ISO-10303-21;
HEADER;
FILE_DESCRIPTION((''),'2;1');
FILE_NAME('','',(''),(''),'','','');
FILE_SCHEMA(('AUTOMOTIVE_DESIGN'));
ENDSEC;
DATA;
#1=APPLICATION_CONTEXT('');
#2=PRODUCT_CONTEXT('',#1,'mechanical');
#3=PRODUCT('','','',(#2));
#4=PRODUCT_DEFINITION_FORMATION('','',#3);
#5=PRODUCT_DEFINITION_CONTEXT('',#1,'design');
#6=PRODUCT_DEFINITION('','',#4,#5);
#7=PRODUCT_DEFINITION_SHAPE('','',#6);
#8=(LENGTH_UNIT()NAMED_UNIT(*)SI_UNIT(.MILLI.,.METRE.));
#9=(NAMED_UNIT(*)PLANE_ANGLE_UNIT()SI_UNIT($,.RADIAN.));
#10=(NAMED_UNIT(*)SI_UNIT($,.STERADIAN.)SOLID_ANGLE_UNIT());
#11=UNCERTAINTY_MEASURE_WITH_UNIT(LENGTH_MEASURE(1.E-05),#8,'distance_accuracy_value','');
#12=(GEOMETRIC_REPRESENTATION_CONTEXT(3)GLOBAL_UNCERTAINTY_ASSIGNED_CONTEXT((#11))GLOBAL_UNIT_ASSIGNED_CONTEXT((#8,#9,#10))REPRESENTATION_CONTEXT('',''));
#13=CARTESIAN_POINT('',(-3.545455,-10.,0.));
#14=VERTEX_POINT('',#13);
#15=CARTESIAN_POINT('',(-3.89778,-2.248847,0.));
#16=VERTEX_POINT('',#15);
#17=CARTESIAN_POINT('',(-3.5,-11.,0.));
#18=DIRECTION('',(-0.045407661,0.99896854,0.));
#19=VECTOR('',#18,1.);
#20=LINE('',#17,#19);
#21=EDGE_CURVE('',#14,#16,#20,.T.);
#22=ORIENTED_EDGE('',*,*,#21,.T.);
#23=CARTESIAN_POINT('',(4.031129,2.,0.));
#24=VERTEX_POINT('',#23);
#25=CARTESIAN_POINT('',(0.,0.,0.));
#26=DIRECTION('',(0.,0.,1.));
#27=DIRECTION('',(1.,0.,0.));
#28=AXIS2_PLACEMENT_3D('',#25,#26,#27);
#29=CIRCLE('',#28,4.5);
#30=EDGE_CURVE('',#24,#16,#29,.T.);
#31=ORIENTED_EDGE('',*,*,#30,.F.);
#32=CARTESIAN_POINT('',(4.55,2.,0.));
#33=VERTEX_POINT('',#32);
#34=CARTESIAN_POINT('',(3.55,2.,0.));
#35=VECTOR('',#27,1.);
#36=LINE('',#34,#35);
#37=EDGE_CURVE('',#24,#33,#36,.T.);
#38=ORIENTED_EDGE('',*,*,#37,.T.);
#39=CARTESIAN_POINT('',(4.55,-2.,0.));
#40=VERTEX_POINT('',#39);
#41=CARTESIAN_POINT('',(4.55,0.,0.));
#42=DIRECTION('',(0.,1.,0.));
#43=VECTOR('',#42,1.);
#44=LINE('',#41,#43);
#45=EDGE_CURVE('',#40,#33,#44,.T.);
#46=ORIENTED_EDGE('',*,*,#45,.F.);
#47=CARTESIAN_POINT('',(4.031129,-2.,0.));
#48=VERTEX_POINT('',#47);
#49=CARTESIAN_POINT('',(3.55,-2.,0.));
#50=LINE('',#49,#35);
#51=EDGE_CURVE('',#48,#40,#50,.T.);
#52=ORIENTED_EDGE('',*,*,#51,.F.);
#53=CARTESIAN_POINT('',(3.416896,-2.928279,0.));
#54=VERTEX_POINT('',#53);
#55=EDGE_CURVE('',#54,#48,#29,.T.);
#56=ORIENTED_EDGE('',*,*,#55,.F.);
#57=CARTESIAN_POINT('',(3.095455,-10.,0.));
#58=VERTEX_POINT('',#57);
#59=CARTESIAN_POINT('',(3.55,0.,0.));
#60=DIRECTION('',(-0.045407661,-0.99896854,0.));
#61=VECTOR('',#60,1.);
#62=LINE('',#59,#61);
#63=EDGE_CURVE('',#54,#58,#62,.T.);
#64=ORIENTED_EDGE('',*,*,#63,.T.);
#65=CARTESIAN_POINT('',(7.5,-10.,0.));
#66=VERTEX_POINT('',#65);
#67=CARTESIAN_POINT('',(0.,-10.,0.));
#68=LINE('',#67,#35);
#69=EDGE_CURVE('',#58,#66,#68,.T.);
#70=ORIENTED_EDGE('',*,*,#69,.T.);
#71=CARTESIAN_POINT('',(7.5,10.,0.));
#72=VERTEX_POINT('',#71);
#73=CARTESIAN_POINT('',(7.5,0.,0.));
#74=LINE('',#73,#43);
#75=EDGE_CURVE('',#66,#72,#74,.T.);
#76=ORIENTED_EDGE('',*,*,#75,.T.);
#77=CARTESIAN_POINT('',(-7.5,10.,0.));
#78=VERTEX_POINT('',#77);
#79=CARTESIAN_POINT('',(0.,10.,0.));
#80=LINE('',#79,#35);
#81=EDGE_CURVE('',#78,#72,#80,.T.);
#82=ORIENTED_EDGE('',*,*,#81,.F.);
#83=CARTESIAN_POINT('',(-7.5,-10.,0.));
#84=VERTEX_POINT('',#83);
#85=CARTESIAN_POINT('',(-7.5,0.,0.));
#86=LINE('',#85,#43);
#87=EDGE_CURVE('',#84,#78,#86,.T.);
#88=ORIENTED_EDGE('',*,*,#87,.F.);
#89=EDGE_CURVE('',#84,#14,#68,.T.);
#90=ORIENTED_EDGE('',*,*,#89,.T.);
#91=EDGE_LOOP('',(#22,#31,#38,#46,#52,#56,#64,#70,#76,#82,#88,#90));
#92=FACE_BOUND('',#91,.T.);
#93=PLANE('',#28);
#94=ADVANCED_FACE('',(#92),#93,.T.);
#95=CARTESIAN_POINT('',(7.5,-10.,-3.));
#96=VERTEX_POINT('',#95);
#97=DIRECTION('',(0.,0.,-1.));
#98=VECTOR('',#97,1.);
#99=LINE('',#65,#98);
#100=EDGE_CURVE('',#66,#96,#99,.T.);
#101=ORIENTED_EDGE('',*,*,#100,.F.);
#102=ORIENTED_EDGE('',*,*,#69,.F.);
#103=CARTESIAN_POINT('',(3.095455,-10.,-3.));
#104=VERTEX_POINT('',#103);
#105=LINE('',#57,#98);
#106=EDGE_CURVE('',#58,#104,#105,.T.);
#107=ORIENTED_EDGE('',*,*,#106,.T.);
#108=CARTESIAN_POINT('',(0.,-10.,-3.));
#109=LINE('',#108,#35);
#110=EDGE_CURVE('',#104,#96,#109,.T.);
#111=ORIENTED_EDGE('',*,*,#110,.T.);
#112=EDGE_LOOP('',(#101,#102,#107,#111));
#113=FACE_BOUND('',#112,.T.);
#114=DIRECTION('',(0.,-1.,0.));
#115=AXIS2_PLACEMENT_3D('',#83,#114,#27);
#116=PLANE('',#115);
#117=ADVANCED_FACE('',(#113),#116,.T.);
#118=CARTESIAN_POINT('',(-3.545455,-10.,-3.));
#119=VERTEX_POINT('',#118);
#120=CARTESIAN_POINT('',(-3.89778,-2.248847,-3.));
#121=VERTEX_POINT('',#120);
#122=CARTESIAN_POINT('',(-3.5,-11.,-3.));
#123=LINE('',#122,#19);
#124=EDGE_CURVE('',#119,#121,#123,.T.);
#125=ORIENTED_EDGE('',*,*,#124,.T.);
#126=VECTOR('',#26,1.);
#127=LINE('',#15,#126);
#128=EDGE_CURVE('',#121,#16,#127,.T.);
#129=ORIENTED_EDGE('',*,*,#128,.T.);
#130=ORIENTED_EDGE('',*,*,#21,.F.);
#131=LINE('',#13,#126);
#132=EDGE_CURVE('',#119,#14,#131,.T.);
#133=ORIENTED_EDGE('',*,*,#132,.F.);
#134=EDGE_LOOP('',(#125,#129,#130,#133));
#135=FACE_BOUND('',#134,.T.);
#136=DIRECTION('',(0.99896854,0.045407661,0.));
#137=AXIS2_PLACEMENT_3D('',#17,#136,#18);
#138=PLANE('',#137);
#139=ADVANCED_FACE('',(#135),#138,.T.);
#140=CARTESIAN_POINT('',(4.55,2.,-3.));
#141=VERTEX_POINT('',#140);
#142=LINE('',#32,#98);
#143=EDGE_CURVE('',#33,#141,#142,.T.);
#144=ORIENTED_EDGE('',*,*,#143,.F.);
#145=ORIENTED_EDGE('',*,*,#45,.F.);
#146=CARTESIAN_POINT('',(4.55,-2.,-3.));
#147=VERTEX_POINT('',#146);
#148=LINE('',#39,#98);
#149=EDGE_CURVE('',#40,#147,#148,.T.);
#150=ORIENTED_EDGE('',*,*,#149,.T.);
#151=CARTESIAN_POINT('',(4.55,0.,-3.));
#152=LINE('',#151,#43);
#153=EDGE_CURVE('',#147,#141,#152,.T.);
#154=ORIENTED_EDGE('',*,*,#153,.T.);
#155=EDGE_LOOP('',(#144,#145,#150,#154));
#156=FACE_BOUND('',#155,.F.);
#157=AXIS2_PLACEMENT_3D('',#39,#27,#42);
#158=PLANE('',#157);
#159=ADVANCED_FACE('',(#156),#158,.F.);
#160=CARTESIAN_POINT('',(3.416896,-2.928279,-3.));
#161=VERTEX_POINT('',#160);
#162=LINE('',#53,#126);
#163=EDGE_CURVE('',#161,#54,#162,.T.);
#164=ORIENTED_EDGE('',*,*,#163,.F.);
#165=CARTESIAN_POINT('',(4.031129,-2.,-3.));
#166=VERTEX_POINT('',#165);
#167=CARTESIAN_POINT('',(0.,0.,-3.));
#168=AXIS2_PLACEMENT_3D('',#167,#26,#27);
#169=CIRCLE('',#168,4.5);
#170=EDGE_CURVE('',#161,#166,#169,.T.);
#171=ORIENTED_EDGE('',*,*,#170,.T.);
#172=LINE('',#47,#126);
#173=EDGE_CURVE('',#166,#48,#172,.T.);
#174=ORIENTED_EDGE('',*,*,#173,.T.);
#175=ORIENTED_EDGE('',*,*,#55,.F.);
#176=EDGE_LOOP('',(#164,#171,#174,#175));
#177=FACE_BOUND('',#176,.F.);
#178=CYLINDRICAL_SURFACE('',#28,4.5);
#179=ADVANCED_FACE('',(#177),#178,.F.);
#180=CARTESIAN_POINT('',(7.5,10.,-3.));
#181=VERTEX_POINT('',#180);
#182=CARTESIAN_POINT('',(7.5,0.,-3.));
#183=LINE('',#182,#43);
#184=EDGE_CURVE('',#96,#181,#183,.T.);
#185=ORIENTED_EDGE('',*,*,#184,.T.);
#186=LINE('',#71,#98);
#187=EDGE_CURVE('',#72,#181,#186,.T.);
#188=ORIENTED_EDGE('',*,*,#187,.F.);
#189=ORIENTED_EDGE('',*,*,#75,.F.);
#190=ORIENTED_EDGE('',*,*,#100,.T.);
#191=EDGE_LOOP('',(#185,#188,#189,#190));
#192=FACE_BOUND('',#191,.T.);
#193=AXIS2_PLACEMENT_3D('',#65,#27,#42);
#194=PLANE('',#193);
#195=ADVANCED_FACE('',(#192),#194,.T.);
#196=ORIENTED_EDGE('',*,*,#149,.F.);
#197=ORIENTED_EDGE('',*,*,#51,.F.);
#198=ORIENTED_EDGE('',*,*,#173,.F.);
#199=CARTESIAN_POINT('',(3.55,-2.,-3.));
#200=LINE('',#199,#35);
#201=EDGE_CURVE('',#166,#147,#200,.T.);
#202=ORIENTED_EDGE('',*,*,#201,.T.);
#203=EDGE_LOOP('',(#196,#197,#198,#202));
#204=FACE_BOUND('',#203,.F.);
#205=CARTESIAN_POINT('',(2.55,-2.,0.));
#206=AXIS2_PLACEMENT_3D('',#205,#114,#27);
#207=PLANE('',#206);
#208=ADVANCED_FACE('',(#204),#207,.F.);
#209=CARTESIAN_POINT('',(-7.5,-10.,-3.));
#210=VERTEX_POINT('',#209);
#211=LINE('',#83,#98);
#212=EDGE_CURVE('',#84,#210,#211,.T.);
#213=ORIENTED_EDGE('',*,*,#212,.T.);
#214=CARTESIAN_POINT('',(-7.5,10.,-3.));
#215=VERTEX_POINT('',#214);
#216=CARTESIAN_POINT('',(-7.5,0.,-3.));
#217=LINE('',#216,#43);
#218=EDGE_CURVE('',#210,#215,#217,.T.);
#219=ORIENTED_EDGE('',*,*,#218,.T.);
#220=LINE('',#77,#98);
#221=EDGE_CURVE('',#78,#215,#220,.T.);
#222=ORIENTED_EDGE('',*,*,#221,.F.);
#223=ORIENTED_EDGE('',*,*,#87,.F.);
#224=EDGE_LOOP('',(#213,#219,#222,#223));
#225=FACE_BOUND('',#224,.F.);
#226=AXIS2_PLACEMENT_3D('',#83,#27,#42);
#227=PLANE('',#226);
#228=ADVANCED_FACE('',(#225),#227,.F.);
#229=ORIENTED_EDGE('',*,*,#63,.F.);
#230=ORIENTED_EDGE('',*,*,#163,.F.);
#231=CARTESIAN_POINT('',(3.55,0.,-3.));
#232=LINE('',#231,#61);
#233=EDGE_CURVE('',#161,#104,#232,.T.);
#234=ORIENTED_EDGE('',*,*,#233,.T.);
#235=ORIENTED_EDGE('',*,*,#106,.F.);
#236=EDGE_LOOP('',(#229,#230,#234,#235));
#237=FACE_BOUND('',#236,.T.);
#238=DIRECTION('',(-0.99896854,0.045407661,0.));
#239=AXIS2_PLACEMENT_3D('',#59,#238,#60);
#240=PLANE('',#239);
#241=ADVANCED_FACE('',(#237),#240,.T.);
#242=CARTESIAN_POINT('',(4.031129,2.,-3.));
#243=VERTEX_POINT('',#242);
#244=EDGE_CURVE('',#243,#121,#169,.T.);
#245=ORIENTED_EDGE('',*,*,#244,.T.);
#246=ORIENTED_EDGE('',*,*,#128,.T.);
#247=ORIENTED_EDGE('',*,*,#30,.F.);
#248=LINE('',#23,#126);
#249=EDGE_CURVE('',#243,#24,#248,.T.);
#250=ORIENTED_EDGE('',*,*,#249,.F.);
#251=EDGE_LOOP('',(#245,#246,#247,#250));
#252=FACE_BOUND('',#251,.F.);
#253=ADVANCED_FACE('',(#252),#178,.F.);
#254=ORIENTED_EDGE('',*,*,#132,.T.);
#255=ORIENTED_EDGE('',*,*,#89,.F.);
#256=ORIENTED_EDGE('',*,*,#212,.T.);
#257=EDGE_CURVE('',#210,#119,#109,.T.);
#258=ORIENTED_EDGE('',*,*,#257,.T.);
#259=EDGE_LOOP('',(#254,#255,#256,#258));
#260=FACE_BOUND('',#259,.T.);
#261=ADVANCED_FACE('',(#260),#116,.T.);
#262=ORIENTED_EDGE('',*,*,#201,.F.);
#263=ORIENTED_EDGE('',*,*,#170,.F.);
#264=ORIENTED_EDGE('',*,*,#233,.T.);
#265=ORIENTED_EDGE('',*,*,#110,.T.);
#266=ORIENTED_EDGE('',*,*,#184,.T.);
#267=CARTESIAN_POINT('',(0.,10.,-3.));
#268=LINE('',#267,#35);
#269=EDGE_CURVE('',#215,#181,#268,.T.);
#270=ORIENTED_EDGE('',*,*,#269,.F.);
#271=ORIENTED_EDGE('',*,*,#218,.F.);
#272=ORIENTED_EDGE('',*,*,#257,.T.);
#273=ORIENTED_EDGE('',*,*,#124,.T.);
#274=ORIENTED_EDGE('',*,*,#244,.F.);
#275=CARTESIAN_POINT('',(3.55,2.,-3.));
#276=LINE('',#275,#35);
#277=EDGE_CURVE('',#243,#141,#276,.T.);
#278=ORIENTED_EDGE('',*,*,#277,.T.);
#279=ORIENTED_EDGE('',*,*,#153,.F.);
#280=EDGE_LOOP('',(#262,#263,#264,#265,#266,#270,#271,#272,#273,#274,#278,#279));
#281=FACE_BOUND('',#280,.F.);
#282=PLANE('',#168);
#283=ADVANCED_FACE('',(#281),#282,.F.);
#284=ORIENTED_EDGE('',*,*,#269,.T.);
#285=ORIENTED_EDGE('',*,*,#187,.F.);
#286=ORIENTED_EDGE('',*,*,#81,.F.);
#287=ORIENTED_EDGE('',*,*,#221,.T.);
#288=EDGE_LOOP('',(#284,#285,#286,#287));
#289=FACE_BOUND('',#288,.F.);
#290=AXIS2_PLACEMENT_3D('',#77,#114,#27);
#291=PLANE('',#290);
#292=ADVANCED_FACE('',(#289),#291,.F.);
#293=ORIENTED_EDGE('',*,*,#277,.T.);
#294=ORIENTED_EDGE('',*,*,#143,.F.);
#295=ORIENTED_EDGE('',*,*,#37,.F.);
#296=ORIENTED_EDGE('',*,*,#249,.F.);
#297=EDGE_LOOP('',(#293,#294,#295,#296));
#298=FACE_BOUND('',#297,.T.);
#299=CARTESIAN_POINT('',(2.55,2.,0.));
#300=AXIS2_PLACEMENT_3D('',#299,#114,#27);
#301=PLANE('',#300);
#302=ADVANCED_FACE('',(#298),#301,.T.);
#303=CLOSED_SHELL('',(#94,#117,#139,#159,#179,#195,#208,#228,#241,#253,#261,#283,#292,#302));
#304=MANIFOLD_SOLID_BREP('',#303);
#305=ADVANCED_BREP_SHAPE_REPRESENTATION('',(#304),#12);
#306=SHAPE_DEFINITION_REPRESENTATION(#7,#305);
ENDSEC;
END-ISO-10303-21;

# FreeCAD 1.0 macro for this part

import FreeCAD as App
import Part
import Sketcher

V = App.Vector

doc = App.newDocument("Part")
body = doc.addObject("PartDesign::Body", "Body")

sketch1 = doc.addObject("Sketcher::SketchObject", "Sketch")
body.addObject(sketch1)
sketch1.AttachmentSupport = (doc.XY_Plane, [""])
sketch1.MapMode = "FlatFace"
sketch1.addGeometry([
    Part.LineSegment(V(-8, 10, 0), V(-8, -10, 0)),
    Part.LineSegment(V(-8, -10, 0), V(8, -10, 0)),
    Part.LineSegment(V(8, -10, 0), V(8, 10, 0)),
    Part.LineSegment(V(8, 10, 0), V(-8, 10, 0)),
], False)
sketch1.addConstraint([
    Sketcher.Constraint("Coincident", 0, 2, 1, 1),
    Sketcher.Constraint("Coincident", 1, 2, 2, 1),
    Sketcher.Constraint("Coincident", 2, 2, 3, 1),
    Sketcher.Constraint("Coincident", 3, 2, 0, 1),
    Sketcher.Constraint("Vertical", 0),
    Sketcher.Constraint("Horizontal", 1),
    Sketcher.Constraint("Vertical", 2),
    Sketcher.Constraint("Horizontal", 3),
    Sketcher.Constraint("Symmetric", 0, 2, 2, 2, -1, 1),
    Sketcher.Constraint("DistanceX", 1, 1, 1, 2, 15.0),
    Sketcher.Constraint("DistanceY", 0, 2, 0, 1, 20.0),
])
pad1 = doc.addObject("PartDesign::Pad", "Pad")
body.addObject(pad1)
pad1.Profile = sketch1
pad1.Length = 3
pad1.Reversed = True

sketch2 = doc.addObject("Sketcher::SketchObject", "Sketch001")
body.addObject(sketch2)
sketch2.AttachmentSupport = (doc.XY_Plane, [""])
sketch2.MapMode = "FlatFace"
sketch2.addGeometry(Part.Circle(V(0, 0, 0), V(0, 0, 1), 4.5), False)
sketch2.addConstraint([
    Sketcher.Constraint("Coincident", 0, 3, -1, 1),
    Sketcher.Constraint("Diameter", 0, 9.0),
])
pocket1 = doc.addObject("PartDesign::Pocket", "Pocket")
body.addObject(pocket1)
pocket1.Profile = sketch2
pocket1.Length = 3

sketch3 = doc.addObject("Sketcher::SketchObject", "Sketch002")
body.addObject(sketch3)
sketch3.AttachmentSupport = (doc.XY_Plane, [""])
sketch3.MapMode = "FlatFace"
sketch3.addGeometry([
    Part.LineSegment(V(2.5, 2, 0), V(2.5, -2, 0)),
    Part.LineSegment(V(2.5, -2, 0), V(4.5, -2, 0)),
    Part.LineSegment(V(4.5, -2, 0), V(4.5, 2, 0)),
    Part.LineSegment(V(4.5, 2, 0), V(2.5, 2, 0)),
], False)
sketch3.addConstraint([
    Sketcher.Constraint("Coincident", 0, 2, 1, 1),
    Sketcher.Constraint("Coincident", 1, 2, 2, 1),
    Sketcher.Constraint("Coincident", 2, 2, 3, 1),
    Sketcher.Constraint("Coincident", 3, 2, 0, 1),
    Sketcher.Constraint("Vertical", 0),
    Sketcher.Constraint("Horizontal", 1),
    Sketcher.Constraint("Vertical", 2),
    Sketcher.Constraint("Horizontal", 3),
    Sketcher.Constraint("DistanceX", 1, 1, 1, 2, 2.0),
    Sketcher.Constraint("DistanceY", 0, 2, 0, 1, 4.0),
    Sketcher.Constraint("DistanceY", 0, 2, -1, 1, 2.0),
    Sketcher.Constraint("DistanceX", -1, 1, 0, 2, 2.55),
])
pocket2 = doc.addObject("PartDesign::Pocket", "Pocket001")
body.addObject(pocket2)
pocket2.Profile = sketch3
pocket2.Length = 3

sketch4 = doc.addObject("Sketcher::SketchObject", "Sketch003")
body.addObject(sketch4)
sketch4.AttachmentSupport = (doc.XY_Plane, [""])
sketch4.MapMode = "FlatFace"
sketch4.addGeometry([
    Part.LineSegment(V(-4, -11, 0), V(3, -11, 0)),
    Part.LineSegment(V(3, -11, 0), V(4, 0, 0)),
    Part.LineSegment(V(4, 0, 0), V(-4, 0, 0)),
    Part.LineSegment(V(-4, 0, 0), V(-4, -11, 0)),
], False)
sketch4.addConstraint([
    Sketcher.Constraint("Coincident", 0, 2, 1, 1),
    Sketcher.Constraint("Coincident", 1, 2, 2, 1),
    Sketcher.Constraint("Coincident", 2, 2, 3, 1),
    Sketcher.Constraint("Coincident", 3, 2, 0, 1),
    Sketcher.Constraint("Horizontal", 0),
    Sketcher.Constraint("Horizontal", 2),
    Sketcher.Constraint("PointOnObject", 1, 2, -1),
    Sketcher.Constraint("Equal", 1, 3),
    Sketcher.Constraint("DistanceY", 0, 2, -1, 1, 11.0),
    Sketcher.Constraint("DistanceX", 2, 2, -1, 1, 4.0),
    Sketcher.Constraint("DistanceX", 0, 1, 0, 2, 6.55),
    Sketcher.Constraint("DistanceX", 2, 2, 2, 1, 7.55),
])
pocket3 = doc.addObject("PartDesign::Pocket", "Pocket002")
body.addObject(pocket3)
pocket3.Profile = sketch4
pocket3.Length = 3

doc.recompute()
